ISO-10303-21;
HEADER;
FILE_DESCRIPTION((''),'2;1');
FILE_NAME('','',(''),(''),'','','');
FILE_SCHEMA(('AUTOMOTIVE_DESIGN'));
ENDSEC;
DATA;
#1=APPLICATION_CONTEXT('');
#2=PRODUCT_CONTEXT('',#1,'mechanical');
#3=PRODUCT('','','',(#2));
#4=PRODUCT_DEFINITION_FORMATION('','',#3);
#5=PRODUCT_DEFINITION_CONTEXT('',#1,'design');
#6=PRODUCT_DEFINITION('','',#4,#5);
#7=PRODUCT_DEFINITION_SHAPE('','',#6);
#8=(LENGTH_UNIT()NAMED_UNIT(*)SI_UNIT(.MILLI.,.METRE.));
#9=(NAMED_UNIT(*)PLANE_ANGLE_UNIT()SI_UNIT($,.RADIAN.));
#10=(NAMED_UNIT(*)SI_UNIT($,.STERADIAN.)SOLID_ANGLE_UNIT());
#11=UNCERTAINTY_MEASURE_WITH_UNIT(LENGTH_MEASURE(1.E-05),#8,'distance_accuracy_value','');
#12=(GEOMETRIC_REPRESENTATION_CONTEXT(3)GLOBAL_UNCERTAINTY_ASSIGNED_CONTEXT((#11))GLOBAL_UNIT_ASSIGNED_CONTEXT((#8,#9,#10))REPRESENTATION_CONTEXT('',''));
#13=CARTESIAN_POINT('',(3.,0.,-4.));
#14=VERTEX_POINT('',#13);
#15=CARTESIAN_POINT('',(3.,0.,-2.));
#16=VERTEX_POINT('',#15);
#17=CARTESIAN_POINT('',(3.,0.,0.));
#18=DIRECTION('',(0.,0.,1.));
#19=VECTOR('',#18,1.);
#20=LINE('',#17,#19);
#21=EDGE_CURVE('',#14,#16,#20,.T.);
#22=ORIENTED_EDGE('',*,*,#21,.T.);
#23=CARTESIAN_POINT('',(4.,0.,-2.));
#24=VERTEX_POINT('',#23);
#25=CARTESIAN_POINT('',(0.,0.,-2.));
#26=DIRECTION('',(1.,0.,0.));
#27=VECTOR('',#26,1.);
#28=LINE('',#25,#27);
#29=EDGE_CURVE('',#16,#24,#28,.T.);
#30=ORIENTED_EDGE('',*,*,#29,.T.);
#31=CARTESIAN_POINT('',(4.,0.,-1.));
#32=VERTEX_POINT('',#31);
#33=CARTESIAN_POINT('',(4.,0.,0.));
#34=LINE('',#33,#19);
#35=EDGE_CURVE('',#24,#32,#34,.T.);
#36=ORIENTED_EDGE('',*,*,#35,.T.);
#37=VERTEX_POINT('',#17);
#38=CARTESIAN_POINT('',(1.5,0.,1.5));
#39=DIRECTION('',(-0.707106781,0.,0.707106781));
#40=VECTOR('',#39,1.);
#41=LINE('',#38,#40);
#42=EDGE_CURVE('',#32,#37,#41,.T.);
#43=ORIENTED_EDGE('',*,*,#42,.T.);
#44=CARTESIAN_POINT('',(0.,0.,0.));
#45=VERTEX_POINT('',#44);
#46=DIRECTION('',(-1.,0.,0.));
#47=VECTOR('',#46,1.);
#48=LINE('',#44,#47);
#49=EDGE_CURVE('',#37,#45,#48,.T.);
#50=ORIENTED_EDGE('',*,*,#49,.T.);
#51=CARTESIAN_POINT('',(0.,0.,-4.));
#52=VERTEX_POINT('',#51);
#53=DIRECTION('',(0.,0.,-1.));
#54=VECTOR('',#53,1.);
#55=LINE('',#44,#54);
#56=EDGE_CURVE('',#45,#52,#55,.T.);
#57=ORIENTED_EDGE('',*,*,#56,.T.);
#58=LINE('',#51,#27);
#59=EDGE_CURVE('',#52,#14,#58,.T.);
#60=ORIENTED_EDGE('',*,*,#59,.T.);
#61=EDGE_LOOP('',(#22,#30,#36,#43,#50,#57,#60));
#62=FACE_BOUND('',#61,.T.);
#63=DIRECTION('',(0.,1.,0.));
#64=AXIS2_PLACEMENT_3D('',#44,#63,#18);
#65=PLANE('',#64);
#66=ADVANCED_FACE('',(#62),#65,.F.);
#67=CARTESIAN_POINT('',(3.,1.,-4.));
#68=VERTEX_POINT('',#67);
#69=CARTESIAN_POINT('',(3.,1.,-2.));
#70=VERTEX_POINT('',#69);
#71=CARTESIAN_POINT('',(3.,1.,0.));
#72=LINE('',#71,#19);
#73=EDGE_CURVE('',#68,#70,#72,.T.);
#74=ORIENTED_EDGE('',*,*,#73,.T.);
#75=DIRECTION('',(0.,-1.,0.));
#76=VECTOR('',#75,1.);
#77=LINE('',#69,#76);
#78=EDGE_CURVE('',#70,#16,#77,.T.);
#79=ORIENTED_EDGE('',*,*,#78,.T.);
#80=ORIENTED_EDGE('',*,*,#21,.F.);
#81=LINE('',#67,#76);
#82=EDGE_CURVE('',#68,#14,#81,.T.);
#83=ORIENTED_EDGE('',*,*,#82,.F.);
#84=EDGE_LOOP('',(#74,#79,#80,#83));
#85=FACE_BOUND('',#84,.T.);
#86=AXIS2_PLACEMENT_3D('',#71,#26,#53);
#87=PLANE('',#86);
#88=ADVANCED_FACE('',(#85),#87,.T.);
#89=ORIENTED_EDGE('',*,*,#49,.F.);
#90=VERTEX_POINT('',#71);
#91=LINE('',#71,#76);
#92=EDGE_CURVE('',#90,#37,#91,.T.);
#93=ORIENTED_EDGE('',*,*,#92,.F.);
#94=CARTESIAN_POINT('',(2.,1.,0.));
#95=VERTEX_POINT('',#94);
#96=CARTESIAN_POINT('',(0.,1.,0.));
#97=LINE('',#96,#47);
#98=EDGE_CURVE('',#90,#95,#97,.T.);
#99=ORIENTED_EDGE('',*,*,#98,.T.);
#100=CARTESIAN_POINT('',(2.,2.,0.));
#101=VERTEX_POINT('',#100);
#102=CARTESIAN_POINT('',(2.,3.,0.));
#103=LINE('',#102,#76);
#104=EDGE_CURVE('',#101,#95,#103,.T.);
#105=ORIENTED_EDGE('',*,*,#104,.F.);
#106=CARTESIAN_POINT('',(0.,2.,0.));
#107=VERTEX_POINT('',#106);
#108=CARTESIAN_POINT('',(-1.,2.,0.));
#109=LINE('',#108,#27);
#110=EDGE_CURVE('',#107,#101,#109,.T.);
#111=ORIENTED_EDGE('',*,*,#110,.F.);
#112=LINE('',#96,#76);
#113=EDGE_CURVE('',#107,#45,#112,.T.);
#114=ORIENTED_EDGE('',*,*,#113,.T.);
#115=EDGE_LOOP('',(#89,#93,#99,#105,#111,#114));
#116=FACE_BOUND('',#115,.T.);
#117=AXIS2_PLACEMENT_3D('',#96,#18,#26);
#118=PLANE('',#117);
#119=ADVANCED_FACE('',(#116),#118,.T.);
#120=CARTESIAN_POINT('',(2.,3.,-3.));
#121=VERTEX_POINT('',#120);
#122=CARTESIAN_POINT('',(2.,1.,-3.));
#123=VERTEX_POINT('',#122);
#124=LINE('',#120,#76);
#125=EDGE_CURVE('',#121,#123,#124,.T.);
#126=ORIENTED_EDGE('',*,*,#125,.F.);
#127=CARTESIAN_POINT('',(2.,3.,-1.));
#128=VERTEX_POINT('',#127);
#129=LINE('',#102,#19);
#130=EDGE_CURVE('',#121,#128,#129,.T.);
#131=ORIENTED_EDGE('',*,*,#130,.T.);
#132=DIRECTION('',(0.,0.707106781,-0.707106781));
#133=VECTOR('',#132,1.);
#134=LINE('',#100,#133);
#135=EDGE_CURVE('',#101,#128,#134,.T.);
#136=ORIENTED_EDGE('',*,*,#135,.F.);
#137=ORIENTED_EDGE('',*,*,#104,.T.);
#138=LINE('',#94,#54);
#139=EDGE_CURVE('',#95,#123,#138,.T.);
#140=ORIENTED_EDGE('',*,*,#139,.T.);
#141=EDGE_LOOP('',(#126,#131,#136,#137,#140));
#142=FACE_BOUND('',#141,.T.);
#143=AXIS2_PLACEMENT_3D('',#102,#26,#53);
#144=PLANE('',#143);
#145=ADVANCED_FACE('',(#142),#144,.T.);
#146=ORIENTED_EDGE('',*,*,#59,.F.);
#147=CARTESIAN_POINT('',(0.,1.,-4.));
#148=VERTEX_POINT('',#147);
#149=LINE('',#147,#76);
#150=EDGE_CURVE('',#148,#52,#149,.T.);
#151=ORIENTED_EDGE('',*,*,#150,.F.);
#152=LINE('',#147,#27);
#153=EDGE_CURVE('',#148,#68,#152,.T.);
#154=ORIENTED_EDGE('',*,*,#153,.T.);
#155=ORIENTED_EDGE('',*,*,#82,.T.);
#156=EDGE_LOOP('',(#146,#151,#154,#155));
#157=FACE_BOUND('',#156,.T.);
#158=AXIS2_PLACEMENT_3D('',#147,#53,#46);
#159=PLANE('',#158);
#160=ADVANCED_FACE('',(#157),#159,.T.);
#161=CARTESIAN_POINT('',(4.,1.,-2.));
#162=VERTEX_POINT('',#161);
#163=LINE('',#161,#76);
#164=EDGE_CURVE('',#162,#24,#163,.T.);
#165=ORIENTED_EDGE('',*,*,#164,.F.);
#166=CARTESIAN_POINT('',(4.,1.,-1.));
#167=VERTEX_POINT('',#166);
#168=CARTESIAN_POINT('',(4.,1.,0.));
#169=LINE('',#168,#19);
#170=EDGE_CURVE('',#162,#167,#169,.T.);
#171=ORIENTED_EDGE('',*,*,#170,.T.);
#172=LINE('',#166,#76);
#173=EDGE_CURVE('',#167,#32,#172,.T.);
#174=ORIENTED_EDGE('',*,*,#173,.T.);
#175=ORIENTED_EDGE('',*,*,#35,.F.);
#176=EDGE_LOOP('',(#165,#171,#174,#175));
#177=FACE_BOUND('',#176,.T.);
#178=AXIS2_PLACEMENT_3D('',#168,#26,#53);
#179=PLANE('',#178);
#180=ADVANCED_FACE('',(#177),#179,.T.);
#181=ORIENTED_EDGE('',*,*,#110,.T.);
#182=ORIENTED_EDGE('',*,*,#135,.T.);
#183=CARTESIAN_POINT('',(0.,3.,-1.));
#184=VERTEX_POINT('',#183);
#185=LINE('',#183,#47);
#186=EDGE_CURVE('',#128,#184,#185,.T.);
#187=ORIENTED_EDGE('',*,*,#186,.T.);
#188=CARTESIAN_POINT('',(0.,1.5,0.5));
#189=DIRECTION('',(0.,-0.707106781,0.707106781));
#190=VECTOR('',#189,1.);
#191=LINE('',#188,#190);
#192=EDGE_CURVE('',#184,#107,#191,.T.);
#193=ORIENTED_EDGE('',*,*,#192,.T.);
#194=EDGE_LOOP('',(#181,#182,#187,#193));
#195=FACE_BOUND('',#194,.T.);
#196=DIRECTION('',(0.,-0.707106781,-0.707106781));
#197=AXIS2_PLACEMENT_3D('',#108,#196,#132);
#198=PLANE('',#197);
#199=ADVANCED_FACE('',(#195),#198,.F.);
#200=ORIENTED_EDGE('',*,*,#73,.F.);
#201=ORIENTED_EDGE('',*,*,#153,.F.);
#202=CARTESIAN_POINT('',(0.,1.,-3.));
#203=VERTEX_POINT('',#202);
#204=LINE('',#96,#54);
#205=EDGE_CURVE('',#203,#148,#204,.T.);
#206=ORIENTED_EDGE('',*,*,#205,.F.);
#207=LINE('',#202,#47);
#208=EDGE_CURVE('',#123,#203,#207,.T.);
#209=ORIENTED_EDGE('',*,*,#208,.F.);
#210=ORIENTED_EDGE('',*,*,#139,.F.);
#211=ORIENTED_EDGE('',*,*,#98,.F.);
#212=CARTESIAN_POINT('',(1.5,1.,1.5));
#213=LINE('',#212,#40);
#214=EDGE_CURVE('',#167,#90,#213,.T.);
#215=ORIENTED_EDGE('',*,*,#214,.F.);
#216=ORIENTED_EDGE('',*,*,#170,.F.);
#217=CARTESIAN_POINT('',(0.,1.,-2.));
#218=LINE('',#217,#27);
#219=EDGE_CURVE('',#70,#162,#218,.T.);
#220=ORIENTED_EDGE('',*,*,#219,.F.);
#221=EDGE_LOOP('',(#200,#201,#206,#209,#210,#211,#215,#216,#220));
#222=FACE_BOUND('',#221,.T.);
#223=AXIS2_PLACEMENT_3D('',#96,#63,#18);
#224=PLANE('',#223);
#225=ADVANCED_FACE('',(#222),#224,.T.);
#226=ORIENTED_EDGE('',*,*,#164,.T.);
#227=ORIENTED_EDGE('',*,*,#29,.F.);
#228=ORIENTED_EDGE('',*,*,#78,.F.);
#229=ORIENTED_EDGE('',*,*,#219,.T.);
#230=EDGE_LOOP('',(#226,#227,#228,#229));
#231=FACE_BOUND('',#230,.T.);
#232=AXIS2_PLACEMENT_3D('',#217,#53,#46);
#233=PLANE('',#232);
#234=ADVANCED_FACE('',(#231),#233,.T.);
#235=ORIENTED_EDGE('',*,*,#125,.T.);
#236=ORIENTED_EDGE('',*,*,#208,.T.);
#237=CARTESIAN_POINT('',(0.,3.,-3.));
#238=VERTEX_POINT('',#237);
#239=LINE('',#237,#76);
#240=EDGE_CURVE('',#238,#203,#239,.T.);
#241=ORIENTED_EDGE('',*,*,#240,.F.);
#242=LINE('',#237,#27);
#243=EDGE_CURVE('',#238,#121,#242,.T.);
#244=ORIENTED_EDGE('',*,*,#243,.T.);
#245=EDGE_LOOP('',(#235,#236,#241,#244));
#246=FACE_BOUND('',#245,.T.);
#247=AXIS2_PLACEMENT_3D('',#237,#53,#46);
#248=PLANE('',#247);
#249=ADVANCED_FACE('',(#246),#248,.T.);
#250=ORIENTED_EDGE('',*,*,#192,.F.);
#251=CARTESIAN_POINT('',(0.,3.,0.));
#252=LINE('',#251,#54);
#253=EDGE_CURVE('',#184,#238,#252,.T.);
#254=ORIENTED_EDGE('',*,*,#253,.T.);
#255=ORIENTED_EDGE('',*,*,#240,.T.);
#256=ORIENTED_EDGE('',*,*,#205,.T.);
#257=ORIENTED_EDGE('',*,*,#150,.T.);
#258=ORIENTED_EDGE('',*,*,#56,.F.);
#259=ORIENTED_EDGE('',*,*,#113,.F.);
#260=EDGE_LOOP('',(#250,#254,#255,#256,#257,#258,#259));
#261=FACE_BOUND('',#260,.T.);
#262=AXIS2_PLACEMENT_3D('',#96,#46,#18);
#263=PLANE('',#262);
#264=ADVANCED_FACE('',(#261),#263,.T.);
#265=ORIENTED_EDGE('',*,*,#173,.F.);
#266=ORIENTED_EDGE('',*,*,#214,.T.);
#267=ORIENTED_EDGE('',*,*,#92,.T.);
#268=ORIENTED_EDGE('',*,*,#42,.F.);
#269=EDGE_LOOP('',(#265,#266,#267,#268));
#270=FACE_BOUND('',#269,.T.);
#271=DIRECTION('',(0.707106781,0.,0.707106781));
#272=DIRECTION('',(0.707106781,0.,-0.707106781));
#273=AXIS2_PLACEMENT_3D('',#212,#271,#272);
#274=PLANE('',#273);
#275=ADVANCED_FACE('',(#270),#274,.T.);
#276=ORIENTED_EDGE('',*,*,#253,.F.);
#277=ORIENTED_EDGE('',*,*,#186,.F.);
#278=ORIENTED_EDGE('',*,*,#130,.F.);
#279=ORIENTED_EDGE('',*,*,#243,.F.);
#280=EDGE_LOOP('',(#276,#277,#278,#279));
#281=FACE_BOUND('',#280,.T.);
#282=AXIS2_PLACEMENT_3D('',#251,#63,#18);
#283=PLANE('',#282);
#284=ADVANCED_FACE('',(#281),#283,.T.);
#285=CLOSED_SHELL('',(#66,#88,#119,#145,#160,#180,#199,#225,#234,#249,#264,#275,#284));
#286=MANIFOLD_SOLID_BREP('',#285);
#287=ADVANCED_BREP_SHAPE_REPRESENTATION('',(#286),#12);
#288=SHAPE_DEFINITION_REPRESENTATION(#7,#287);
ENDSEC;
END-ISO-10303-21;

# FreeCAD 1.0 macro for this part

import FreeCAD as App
import Part
import Sketcher

V = App.Vector
Q = App.Units.Quantity

doc = App.newDocument("Part")
body = doc.addObject("PartDesign::Body", "Body")

sketch1 = body.newObject("Sketcher::SketchObject", "Sketch")
sketch1.AttachmentSupport = (doc.getObject("XZ_Plane"), [""])
sketch1.MapMode = "FlatFace"
sketch1.addGeometry(Part.LineSegment(V(3, 0, 0), V(4, -1, 0)), False)
sketch1.addGeometry(Part.LineSegment(V(4, -1, 0), V(4, -2, 0)), False)
sketch1.addGeometry(Part.LineSegment(V(4, -2, 0), V(3, -2, 0)), False)
sketch1.addGeometry(Part.LineSegment(V(3, -2, 0), V(3, -4, 0)), False)
sketch1.addGeometry(Part.LineSegment(V(3, -4, 0), V(0, -4, 0)), False)
sketch1.addGeometry(Part.LineSegment(V(0, -4, 0), V(0, 0, 0)), False)
sketch1.addGeometry(Part.LineSegment(V(0, 0, 0), V(3, 0, 0)), False)
sketch1.addConstraint(Sketcher.Constraint("Coincident", 0, 2, 1, 1))
sketch1.addConstraint(Sketcher.Constraint("Coincident", 1, 2, 2, 1))
sketch1.addConstraint(Sketcher.Constraint("Coincident", 2, 2, 3, 1))
sketch1.addConstraint(Sketcher.Constraint("Coincident", 3, 2, 4, 1))
sketch1.addConstraint(Sketcher.Constraint("Coincident", 4, 2, 5, 1))
sketch1.addConstraint(Sketcher.Constraint("Coincident", 5, 2, 6, 1))
sketch1.addConstraint(Sketcher.Constraint("Coincident", 6, 2, 0, 1))
sketch1.addConstraint(Sketcher.Constraint("Vertical", 1))
sketch1.addConstraint(Sketcher.Constraint("Horizontal", 2))
sketch1.addConstraint(Sketcher.Constraint("Vertical", 3))
sketch1.addConstraint(Sketcher.Constraint("Horizontal", 4))
sketch1.addConstraint(Sketcher.Constraint("Vertical", 5))
sketch1.addConstraint(Sketcher.Constraint("Horizontal", 6))
sketch1.addConstraint(Sketcher.Constraint("Coincident", 5, 2, -1, 1))
sketch1.addConstraint(Sketcher.Constraint("Vertical", 3, 2, 6, 2))
sketch1.addConstraint(Sketcher.Constraint("Equal", 2, 1))
sketch1.addConstraint(Sketcher.Constraint("DistanceX", 2, 2, 2, 1, Q("1 mm")))
sketch1.addConstraint(Sketcher.Constraint("DistanceX", 4, 2, 4, 1, Q("3 mm")))
sketch1.addConstraint(Sketcher.Constraint("DistanceY", 3, 2, 3, 1, Q("2 mm")))
sketch1.addConstraint(Sketcher.Constraint("DistanceY", 5, 1, 5, 2, Q("4 mm")))
pad1 = body.newObject("PartDesign::Pad", "Pad")
pad1.Profile = sketch1
pad1.Length = 1
pad1.Reversed = True

sketch2 = body.newObject("Sketcher::SketchObject", "Sketch001")
sketch2.AttachmentSupport = (doc.getObject("XZ_Plane"), [""])
sketch2.MapMode = "FlatFace"
sketch2.addGeometry(Part.LineSegment(V(0, -3, 0), V(0, 0, 0)), False)
sketch2.addGeometry(Part.LineSegment(V(0, 0, 0), V(2, 0, 0)), False)
sketch2.addGeometry(Part.LineSegment(V(2, 0, 0), V(2, -3, 0)), False)
sketch2.addGeometry(Part.LineSegment(V(2, -3, 0), V(0, -3, 0)), False)
sketch2.addConstraint(Sketcher.Constraint("Coincident", 0, 2, 1, 1))
sketch2.addConstraint(Sketcher.Constraint("Coincident", 1, 2, 2, 1))
sketch2.addConstraint(Sketcher.Constraint("Coincident", 2, 2, 3, 1))
sketch2.addConstraint(Sketcher.Constraint("Coincident", 3, 2, 0, 1))
sketch2.addConstraint(Sketcher.Constraint("Vertical", 0))
sketch2.addConstraint(Sketcher.Constraint("Horizontal", 1))
sketch2.addConstraint(Sketcher.Constraint("Vertical", 2))
sketch2.addConstraint(Sketcher.Constraint("Horizontal", 3))
sketch2.addConstraint(Sketcher.Constraint("Coincident", 0, 2, -1, 1))
sketch2.addConstraint(Sketcher.Constraint("DistanceX", 1, 1, 1, 2, Q("2 mm")))
sketch2.addConstraint(Sketcher.Constraint("DistanceY", 0, 1, 0, 2, Q("3 mm")))
pad2 = body.newObject("PartDesign::Pad", "Pad001")
pad2.Profile = sketch2
pad2.Length = 3
pad2.Reversed = True

sketch3 = body.newObject("Sketcher::SketchObject", "Sketch002")
sketch3.AttachmentSupport = (doc.getObject("YZ_Plane"), [""])
sketch3.MapMode = "FlatFace"
sketch3.AttachmentOffset = App.Placement(V(0, 0, 2), App.Rotation())
sketch3.addGeometry(Part.LineSegment(V(3, 0, 0), V(2, 0, 0)), False)
sketch3.addGeometry(Part.LineSegment(V(2, 0, 0), V(3, -1, 0)), False)
sketch3.addGeometry(Part.LineSegment(V(3, -1, 0), V(3, 0, 0)), False)
sketch3.addConstraint(Sketcher.Constraint("Coincident", 0, 2, 1, 1))
sketch3.addConstraint(Sketcher.Constraint("Coincident", 1, 2, 2, 1))
sketch3.addConstraint(Sketcher.Constraint("Coincident", 2, 2, 0, 1))
sketch3.addConstraint(Sketcher.Constraint("Horizontal", 0))
sketch3.addConstraint(Sketcher.Constraint("Vertical", 2))
sketch3.addConstraint(Sketcher.Constraint("PointOnObject", 0, 2, -1))
sketch3.addConstraint(Sketcher.Constraint("Equal", 0, 2))
sketch3.addConstraint(Sketcher.Constraint("DistanceX", 0, 2, 0, 1, Q("1 mm")))
sketch3.addConstraint(Sketcher.Constraint("DistanceX", -1, 1, 0, 2, Q("2 mm")))
pocket1 = body.newObject("PartDesign::Pocket", "Pocket")
pocket1.Profile = sketch3
pocket1.Length = 3

doc.recompute()
